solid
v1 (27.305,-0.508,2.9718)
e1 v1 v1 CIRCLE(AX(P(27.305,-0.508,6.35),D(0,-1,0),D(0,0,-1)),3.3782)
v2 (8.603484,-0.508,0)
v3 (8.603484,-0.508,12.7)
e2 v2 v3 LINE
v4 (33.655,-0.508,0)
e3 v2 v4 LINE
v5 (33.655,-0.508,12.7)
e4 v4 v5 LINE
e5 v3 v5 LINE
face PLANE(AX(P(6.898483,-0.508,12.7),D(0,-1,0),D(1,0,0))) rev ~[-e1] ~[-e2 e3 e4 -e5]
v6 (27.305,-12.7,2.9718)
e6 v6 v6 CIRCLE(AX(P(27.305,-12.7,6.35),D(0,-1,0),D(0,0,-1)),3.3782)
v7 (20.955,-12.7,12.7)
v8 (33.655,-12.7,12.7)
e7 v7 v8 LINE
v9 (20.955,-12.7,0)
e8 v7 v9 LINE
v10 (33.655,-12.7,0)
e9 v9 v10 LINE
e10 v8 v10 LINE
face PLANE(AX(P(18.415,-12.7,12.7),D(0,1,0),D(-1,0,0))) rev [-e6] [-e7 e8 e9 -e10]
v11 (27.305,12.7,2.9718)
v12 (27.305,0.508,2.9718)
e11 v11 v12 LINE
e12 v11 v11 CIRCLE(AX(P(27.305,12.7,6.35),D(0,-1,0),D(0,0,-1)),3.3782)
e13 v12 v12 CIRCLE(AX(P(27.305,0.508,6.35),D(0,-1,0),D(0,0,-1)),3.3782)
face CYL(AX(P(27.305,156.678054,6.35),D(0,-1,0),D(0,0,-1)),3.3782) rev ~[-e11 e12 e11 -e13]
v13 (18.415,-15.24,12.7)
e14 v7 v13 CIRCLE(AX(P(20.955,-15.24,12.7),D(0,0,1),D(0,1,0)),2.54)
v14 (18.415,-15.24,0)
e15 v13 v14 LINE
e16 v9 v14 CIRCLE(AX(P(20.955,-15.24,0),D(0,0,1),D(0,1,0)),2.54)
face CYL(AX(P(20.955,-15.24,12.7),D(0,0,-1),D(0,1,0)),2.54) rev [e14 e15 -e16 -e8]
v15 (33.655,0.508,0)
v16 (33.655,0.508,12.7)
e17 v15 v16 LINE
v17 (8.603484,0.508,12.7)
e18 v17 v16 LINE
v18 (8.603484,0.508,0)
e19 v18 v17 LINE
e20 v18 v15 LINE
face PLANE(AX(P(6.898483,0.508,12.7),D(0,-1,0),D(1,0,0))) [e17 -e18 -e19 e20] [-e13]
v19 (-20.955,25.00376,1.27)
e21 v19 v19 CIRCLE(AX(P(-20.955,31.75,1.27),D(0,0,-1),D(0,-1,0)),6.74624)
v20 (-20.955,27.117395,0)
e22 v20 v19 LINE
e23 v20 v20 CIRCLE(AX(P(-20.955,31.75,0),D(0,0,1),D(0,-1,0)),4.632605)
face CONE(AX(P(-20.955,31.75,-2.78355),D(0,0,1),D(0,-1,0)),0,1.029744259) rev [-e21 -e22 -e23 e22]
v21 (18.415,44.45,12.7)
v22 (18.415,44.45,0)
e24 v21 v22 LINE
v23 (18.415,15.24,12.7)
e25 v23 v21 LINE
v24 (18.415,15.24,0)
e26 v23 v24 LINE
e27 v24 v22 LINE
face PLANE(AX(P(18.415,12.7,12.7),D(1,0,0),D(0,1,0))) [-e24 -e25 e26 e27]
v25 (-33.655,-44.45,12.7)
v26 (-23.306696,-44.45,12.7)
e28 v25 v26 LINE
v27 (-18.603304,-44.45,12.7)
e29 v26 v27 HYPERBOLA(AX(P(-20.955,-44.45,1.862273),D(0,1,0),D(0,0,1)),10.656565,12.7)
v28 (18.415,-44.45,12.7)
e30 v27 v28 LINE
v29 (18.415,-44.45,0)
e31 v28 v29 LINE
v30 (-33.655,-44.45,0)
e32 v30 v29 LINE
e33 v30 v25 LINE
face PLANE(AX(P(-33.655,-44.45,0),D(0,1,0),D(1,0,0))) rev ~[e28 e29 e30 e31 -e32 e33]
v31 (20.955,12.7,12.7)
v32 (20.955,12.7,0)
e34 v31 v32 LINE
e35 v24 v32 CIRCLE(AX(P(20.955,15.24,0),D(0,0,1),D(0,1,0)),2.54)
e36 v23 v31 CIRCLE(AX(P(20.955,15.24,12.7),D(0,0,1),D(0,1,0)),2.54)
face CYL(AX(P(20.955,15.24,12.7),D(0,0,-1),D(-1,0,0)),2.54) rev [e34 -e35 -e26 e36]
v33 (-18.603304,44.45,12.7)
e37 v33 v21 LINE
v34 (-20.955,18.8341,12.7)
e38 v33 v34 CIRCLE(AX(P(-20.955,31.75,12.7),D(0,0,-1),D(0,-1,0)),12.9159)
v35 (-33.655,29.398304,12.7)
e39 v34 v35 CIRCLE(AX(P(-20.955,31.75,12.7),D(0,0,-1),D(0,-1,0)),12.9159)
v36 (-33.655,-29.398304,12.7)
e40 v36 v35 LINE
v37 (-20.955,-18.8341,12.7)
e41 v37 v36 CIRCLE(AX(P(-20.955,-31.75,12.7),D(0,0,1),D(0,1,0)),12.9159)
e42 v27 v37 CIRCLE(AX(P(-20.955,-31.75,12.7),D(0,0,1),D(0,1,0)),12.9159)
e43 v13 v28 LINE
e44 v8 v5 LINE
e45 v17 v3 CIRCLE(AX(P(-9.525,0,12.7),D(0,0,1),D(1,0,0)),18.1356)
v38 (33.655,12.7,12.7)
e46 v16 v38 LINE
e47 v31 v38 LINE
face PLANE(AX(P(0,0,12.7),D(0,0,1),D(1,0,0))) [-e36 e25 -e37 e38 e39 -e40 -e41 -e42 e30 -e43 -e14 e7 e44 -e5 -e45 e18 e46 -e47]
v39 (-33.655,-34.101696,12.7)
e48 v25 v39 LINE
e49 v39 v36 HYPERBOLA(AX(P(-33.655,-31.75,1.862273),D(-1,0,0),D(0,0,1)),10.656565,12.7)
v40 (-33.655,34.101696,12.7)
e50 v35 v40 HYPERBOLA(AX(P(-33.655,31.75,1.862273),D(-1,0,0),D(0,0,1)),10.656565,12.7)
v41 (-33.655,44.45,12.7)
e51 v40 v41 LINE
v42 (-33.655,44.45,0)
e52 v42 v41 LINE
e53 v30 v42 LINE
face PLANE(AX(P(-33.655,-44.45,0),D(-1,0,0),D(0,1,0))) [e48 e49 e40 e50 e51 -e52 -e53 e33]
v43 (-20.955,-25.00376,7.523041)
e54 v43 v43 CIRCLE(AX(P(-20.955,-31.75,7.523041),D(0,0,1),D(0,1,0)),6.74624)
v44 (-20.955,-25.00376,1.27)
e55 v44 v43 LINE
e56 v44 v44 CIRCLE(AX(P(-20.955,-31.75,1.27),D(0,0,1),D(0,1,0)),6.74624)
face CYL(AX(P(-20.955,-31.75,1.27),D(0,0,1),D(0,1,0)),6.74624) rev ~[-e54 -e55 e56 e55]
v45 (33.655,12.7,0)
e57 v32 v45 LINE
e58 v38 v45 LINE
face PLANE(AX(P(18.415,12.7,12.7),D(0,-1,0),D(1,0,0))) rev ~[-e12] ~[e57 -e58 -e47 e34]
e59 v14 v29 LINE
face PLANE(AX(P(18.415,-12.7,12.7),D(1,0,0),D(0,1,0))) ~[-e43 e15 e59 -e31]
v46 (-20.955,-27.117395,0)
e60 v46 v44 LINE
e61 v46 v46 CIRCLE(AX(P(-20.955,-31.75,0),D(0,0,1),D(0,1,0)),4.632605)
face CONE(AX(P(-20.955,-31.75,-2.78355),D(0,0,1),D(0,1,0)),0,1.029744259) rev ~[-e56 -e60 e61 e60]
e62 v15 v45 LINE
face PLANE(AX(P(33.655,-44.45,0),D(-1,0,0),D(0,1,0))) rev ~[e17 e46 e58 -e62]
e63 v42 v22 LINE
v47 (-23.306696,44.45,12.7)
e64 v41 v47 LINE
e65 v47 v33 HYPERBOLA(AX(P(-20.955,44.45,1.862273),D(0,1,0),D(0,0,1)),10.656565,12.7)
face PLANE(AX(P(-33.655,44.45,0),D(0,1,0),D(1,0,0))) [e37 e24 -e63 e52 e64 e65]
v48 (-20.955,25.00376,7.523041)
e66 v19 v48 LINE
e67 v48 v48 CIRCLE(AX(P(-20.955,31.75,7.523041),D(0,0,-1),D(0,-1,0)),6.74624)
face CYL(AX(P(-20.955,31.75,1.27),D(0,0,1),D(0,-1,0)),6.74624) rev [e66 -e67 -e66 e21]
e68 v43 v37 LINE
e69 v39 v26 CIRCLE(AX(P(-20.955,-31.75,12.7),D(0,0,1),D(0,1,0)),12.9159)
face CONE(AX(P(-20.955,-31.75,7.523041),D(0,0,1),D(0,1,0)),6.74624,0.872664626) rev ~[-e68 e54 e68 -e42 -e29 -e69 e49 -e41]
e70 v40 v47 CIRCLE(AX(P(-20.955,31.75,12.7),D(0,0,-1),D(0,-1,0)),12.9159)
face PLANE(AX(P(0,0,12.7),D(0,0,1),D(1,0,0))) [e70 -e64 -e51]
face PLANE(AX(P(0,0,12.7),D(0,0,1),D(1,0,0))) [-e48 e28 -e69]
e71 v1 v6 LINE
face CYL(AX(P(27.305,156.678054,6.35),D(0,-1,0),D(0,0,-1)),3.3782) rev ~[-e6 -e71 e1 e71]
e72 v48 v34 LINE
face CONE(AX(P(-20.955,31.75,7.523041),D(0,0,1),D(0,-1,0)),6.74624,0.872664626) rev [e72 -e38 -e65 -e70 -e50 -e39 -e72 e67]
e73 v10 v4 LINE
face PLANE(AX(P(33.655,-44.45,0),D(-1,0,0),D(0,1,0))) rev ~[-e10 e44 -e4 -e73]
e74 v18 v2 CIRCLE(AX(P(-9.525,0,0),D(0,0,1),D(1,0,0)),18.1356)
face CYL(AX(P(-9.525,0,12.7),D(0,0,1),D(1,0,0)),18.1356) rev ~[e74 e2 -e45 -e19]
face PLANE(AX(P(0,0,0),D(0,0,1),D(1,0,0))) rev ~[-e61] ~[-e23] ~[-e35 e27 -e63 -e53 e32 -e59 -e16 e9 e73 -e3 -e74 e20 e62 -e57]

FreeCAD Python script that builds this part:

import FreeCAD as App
import Part
import Sketcher
from FreeCAD import Vector
Q = App.Units.Quantity


def edges_at(feature, points):
    """Names of the edges that pass closest to the given points."""
    edges = feature.Shape.Edges
    near = lambda p: min(range(len(edges)), key=lambda i: edges[i].distToShape(Part.Vertex(*p))[0])
    return sorted({f"Edge{near(p) + 1}" for p in points})


def add_polygon(sketch, points):
    """Adds a closed chain of lines whose ends are joined by coincident constraints."""
    first, n = sketch.GeometryCount, len(points)
    for a, b in zip(points, points[1:] + points[:1]):
        sketch.addGeometry(Part.LineSegment(App.Vector(*a, 0), App.Vector(*b, 0)), False)
    for i in range(n):
        sketch.addConstraint(Sketcher.Constraint("Coincident", first + i, 2, first + (i + 1) % n, 1))

doc = App.newDocument("Part")
body = doc.addObject("PartDesign::Body", "Body")

sketch1 = doc.addObject("Sketcher::SketchObject", "Sketch")
body.addObject(sketch1)
sketch1.AttachmentSupport = (doc.XY_Plane, [""])
sketch1.MapMode = "FlatFace"
add_polygon(sketch1, [(-34, 44), (-34, -44), (34, -44), (34, 44)])
sketch1.addConstraint([
    Sketcher.Constraint("Vertical", 0),
    Sketcher.Constraint("Horizontal", 1),
    Sketcher.Constraint("Vertical", 2),
    Sketcher.Constraint("Horizontal", 3),
    Sketcher.Constraint("Symmetric", 0, 2, 2, 2, -1, 1),
    Sketcher.Constraint("DistanceY", 0, 2, 0, 1, Q("3.5 in")),
    Sketcher.Constraint("DistanceX", 1, 1, 1, 2, Q("2.65 in")),
])
pad1 = doc.addObject("PartDesign::Pad", "Pad")
body.addObject(pad1)
pad1.Profile = sketch1
pad1.Length = Q("0.5 in")

sketch2 = doc.addObject("Sketcher::SketchObject", "Sketch001")
body.addObject(sketch2)
sketch2.AttachmentSupport = (doc.XY_Plane, [""])
sketch2.MapMode = "FlatFace"
sketch2.AttachmentOffset = App.Placement(Vector(0, 0, 0.5 * 25.4), App.Rotation())
sketch2.addGeometry(Part.Circle(Vector(-10, 0, 0), Vector(0, 0, 1), 18), False)
sketch2.addConstraint([
    Sketcher.Constraint("PointOnObject", 0, 3, -1),
    Sketcher.Constraint("Diameter", 0, Q("1.428 in")),
    Sketcher.Constraint("DistanceX", 0, 3, -1, 1, Q("0.375 in")),
])
pocket1 = doc.addObject("PartDesign::Pocket", "Pocket")
body.addObject(pocket1)
pocket1.Profile = sketch2
pocket1.Type = "ThroughAll"

sketch3 = doc.addObject("Sketcher::SketchObject", "Sketch002")
body.addObject(sketch3)
sketch3.AttachmentSupport = (doc.XY_Plane, [""])
sketch3.MapMode = "FlatFace"
sketch3.AttachmentOffset = App.Placement(Vector(0, 0, 0.5 * 25.4), App.Rotation())
add_polygon(sketch3, [(6.9, 0.5), (6.9, -0.5), (35.4, -0.5), (35.4, 0.5)])
sketch3.addConstraint([
    Sketcher.Constraint("Vertical", 0),
    Sketcher.Constraint("Horizontal", 1),
    Sketcher.Constraint("Vertical", 2),
    Sketcher.Constraint("Horizontal", 3),
    Sketcher.Constraint("DistanceY", 0, 2, 0, 1, Q("0.04 in")),
    Sketcher.Constraint("DistanceY", 0, 2, -1, 1, Q("0.02 in")),
    Sketcher.Constraint("DistanceX", 1, 1, 1, 2, 28.468633),
    Sketcher.Constraint("DistanceX", -1, 1, 0, 2, 6.898483),
])
pocket2 = doc.addObject("PartDesign::Pocket", "Pocket001")
body.addObject(pocket2)
pocket2.Profile = sketch3
pocket2.Type = "ThroughAll"

sketch4 = doc.addObject("Sketcher::SketchObject", "Sketch003")
body.addObject(sketch4)
sketch4.AttachmentSupport = (doc.XZ_Plane, [""])
sketch4.MapMode = "FlatFace"
sketch4.AttachmentOffset = App.Placement(Vector(0, 0, -1.75 * 25.4), App.Rotation())
sketch4.addGeometry(Part.Circle(Vector(27.3, 6.3, 0), Vector(0, 0, 1), 3.4), False)
sketch4.addConstraint([
    Sketcher.Constraint("Diameter", 0, Q("0.266 in")),
    Sketcher.Constraint("DistanceY", -1, 1, 0, 3, Q("0.25 in")),
    Sketcher.Constraint("DistanceX", -1, 1, 0, 3, Q("1.075 in")),
])
doc.recompute()
hole = doc.addObject("PartDesign::Hole", "Hole")
body.addObject(hole)
hole.Profile = sketch4
hole.ThreadType = "None"
hole.Diameter = Q("0.266 in")
hole.DepthType = "ThroughAll"
hole.Reversed = True

sketch5 = doc.addObject("Sketcher::SketchObject", "Sketch004")
body.addObject(sketch5)
sketch5.AttachmentSupport = (doc.YZ_Plane, [""])
sketch5.MapMode = "FlatFace"
sketch5.AttachmentOffset = App.Placement(Vector(0, 0, -0.825 * 25.4), App.Rotation())
add_polygon(sketch5, [(32, -3), (32, 13), (19, 13), (25, 8), (25, 1)])
sketch5.addGeometry(Part.LineSegment(Vector(32, 13, 0), Vector(32, -3, 0)), True)
sketch5.addConstraint([
    Sketcher.Constraint("Vertical", 0),
    Sketcher.Constraint("Horizontal", 1),
    Sketcher.Constraint("Vertical", 3),
    Sketcher.Constraint("Vertical", 5),
    Sketcher.Constraint("Coincident", 5, 1, 0, 2),
    Sketcher.Constraint("Equal", 0, 5),
    Sketcher.Constraint("Angle", 2, Q("-40 deg")),
    Sketcher.Constraint("Angle", 4, Q("-31 deg")),
    Sketcher.Constraint("DistanceY", -1, 1, 0, 2, Q("0.5 in")),
    Sketcher.Constraint("DistanceX", -1, 1, 0, 2, Q("1.25 in")),
    Sketcher.Constraint("DistanceY", -1, 1, 3, 2, Q("0.05 in")),
    Sketcher.Constraint("DistanceX", 1, 2, 1, 1, Q("0.5085 in")),
    Sketcher.Constraint("DistanceX", -1, 1, 2, 2, Q("0.9844 in")),
])
groove = doc.addObject("PartDesign::Groove", "Groove")
body.addObject(groove)
groove.Profile = sketch5
groove.ReferenceAxis = (sketch5, ["Axis0"])
groove.Angle = 360
doc.recompute()

mirrored = doc.addObject("PartDesign::Mirrored", "Mirrored")
body.addObject(mirrored)
mirrored.Originals = [groove]
mirrored.MirrorPlane = (doc.XZ_Plane, [""])
body.Tip = mirrored

sketch6 = doc.addObject("Sketcher::SketchObject", "Sketch005")
body.addObject(sketch6)
sketch6.AttachmentSupport = (doc.XY_Plane, [""])
sketch6.MapMode = "FlatFace"
sketch6.AttachmentOffset = App.Placement(Vector(0, 0, 0.5 * 25.4), App.Rotation())
add_polygon(sketch6, [(18, 44), (18, 13), (34, 13), (34, 44)])
sketch6.addConstraint([
    Sketcher.Constraint("Vertical", 0),
    Sketcher.Constraint("Horizontal", 1),
    Sketcher.Constraint("Vertical", 2),
    Sketcher.Constraint("Horizontal", 3),
    Sketcher.Constraint("DistanceX", 1, 1, 1, 2, Q("0.6 in")),
    Sketcher.Constraint("DistanceY", 0, 2, 0, 1, Q("1.25 in")),
    Sketcher.Constraint("DistanceY", -1, 1, 0, 2, Q("0.5 in")),
    Sketcher.Constraint("DistanceX", -1, 1, 0, 2, Q("0.725 in")),
])
pocket3 = doc.addObject("PartDesign::Pocket", "Pocket002")
body.addObject(pocket3)
pocket3.Profile = sketch6
pocket3.Type = "ThroughAll"
doc.recompute()

fillet = doc.addObject("PartDesign::Fillet", "Fillet")
body.addObject(fillet)
fillet.Base = (pocket3, edges_at(pocket3, [(18.415, 12.7, 6.35)]))
fillet.Radius = Q("0.1 in")
doc.recompute()

mirrored2 = doc.addObject("PartDesign::Mirrored", "Mirrored001")
body.addObject(mirrored2)
mirrored2.Originals = [pocket3]
mirrored2.MirrorPlane = (doc.XZ_Plane, [""])
body.Tip = mirrored2
doc.recompute()

fillet2 = doc.addObject("PartDesign::Fillet", "Fillet001")
body.addObject(fillet2)
fillet2.Base = (mirrored2, edges_at(mirrored2, [(18.415, -12.7, 6.35)]))
fillet2.Radius = Q("0.1 in")

doc.recompute()
